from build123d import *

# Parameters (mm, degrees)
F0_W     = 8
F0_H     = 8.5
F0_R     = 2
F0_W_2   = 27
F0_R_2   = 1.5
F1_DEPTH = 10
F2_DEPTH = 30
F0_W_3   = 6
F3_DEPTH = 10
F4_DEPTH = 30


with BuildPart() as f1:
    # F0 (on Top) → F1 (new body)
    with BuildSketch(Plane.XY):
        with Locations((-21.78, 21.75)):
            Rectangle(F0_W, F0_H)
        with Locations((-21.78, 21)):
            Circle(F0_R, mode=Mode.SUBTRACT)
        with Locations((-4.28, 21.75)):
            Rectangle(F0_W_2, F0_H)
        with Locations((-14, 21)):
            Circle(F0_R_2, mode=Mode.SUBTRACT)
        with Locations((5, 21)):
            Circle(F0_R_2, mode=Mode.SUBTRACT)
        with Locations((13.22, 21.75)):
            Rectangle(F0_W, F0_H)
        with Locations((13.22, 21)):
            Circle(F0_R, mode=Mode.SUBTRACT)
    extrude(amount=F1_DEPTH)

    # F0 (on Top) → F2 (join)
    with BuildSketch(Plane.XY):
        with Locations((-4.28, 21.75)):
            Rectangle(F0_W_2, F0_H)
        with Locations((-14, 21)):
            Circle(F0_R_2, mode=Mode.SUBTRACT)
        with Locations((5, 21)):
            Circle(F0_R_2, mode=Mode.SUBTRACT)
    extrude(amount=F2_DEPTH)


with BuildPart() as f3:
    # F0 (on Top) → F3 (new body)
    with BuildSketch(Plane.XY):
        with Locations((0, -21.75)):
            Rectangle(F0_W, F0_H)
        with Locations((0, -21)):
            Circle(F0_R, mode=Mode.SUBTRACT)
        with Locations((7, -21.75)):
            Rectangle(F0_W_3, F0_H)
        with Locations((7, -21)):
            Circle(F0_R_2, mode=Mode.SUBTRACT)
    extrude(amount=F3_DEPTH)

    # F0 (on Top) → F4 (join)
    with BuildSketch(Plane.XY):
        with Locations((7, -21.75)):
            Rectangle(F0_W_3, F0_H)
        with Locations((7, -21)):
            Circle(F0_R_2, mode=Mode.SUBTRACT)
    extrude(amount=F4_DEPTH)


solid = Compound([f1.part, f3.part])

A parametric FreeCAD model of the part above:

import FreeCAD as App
import Part
import Sketcher
Q = App.Units.Quantity


def add_polygon(sketch, points):
    """Adds a closed chain of lines whose ends are joined by coincident constraints."""
    first, n = sketch.GeometryCount, len(points)
    for a, b in zip(points, points[1:] + points[:1]):
        sketch.addGeometry(Part.LineSegment(App.Vector(*a, 0), App.Vector(*b, 0)), False)
    for i in range(n):
        sketch.addConstraint(Sketcher.Constraint("Coincident", first + i, 2, first + (i + 1) % n, 1))

doc = App.newDocument("Part")
body = doc.addObject("PartDesign::Body", "Body")

sketch1 = body.newObject("Sketcher::SketchObject", "Sketch")
sketch1.AttachmentSupport = (doc.getObject("XY_Plane"), [""])
sketch1.MapMode = "FlatFace"
add_polygon(sketch1, [(-25.8, 26), (-25.8, 17.5), (17.2, 17.5), (17.2, 26)])
sketch1.addGeometry(Part.Circle(App.Vector(-21.8, 21, 0), App.Vector(0, 0, 1), 2), False)
sketch1.addGeometry(Part.Circle(App.Vector(-14, 21, 0), App.Vector(0, 0, 1), 1.5), False)
sketch1.addGeometry(Part.Circle(App.Vector(5, 21, 0), App.Vector(0, 0, 1), 1.5), False)
sketch1.addGeometry(Part.Circle(App.Vector(13.2, 21, 0), App.Vector(0, 0, 1), 2), False)
sketch1.addConstraint([
    Sketcher.Constraint("Vertical", 0),
    Sketcher.Constraint("Horizontal", 1),
    Sketcher.Constraint("Vertical", 2),
    Sketcher.Constraint("Horizontal", 3),
    Sketcher.Constraint("Equal", 5, 6),
    Sketcher.Constraint("Equal", 4, 7),
    Sketcher.Constraint("Horizontal", 4, 3, 5, 3),
    Sketcher.Constraint("Horizontal", 5, 3, 6, 3),
    Sketcher.Constraint("Horizontal", 6, 3, 7, 3),
    Sketcher.Constraint("Diameter", 4, Q("4 mm")),
    Sketcher.Constraint("Diameter", 5, Q("3 mm")),
    Sketcher.Constraint("DistanceX", 1, 1, 1, 2, Q("43 mm")),
    Sketcher.Constraint("DistanceY", 0, 2, 0, 1, Q("8.5 mm")),
    Sketcher.Constraint("DistanceY", -1, 1, 4, 3, Q("21 mm")),
    Sketcher.Constraint("DistanceX", 5, 3, -1, 1, Q("14 mm")),
    Sketcher.Constraint("DistanceX", -1, 1, 6, 3, Q("5 mm")),
    Sketcher.Constraint("DistanceY", -1, 1, 2, 2, Q("26 mm")),
    Sketcher.Constraint("DistanceX", 4, 3, 7, 3, Q("35 mm")),
    Sketcher.Constraint("DistanceX", 0, 2, 4, 3, Q("4 mm")),
    Sketcher.Constraint("DistanceX", 4, 3, -1, 1, Q("21.78 mm")),
])
pad1 = body.newObject("PartDesign::Pad", "Pad")
pad1.Profile = sketch1
pad1.Length = 10

sketch2 = body.newObject("Sketcher::SketchObject", "Sketch001")
sketch2.AttachmentSupport = (doc.getObject("XY_Plane"), [""])
sketch2.MapMode = "FlatFace"
add_polygon(sketch2, [(-17.8, 26), (-17.8, 17.5), (9.2, 17.5), (9.2, 26)])
sketch2.addGeometry(Part.Circle(App.Vector(-14, 21, 0), App.Vector(0, 0, 1), 1.5), False)
sketch2.addGeometry(Part.Circle(App.Vector(5, 21, 0), App.Vector(0, 0, 1), 1.5), False)
sketch2.addConstraint([
    Sketcher.Constraint("Vertical", 0),
    Sketcher.Constraint("Horizontal", 1),
    Sketcher.Constraint("Vertical", 2),
    Sketcher.Constraint("Horizontal", 3),
    Sketcher.Constraint("Equal", 4, 5),
    Sketcher.Constraint("Horizontal", 4, 3, 5, 3),
    Sketcher.Constraint("Diameter", 4, Q("3 mm")),
    Sketcher.Constraint("DistanceX", 1, 1, 1, 2, Q("27 mm")),
    Sketcher.Constraint("DistanceY", 0, 2, 0, 1, Q("8.5 mm")),
    Sketcher.Constraint("DistanceX", 4, 3, -1, 1, Q("14 mm")),
    Sketcher.Constraint("DistanceY", -1, 1, 4, 3, Q("21 mm")),
    Sketcher.Constraint("DistanceX", -1, 1, 5, 3, Q("5 mm")),
    Sketcher.Constraint("DistanceY", -1, 1, 2, 2, Q("26 mm")),
    Sketcher.Constraint("DistanceX", 0, 2, -1, 1, Q("17.78 mm")),
])
pad2 = body.newObject("PartDesign::Pad", "Pad001")
pad2.Profile = sketch2
pad2.Length = 30
body2 = doc.addObject("PartDesign::Body", "Body001")

sketch3 = body2.newObject("Sketcher::SketchObject", "Sketch002")
sketch3.AttachmentSupport = (doc.getObject("XY_Plane001"), [""])
sketch3.MapMode = "FlatFace"
add_polygon(sketch3, [(-4, -17.5), (-4, -26), (10, -26), (10, -17.5)])
sketch3.addGeometry(Part.Circle(App.Vector(0, -21, 0), App.Vector(0, 0, 1), 2), False)
sketch3.addGeometry(Part.Circle(App.Vector(7, -21, 0), App.Vector(0, 0, 1), 1.5), False)
sketch3.addConstraint([
    Sketcher.Constraint("Vertical", 0),
    Sketcher.Constraint("Horizontal", 1),
    Sketcher.Constraint("Vertical", 2),
    Sketcher.Constraint("Horizontal", 3),
    Sketcher.Constraint("PointOnObject", 4, 3, -2),
    Sketcher.Constraint("Horizontal", 4, 3, 5, 3),
    Sketcher.Constraint("Diameter", 4, Q("4 mm")),
    Sketcher.Constraint("Diameter", 5, Q("3 mm")),
    Sketcher.Constraint("DistanceX", 1, 1, 1, 2, Q("14 mm")),
    Sketcher.Constraint("DistanceY", 0, 2, 0, 1, Q("8.5 mm")),
    Sketcher.Constraint("DistanceY", 4, 3, -1, 1, Q("21 mm")),
    Sketcher.Constraint("DistanceX", -1, 1, 5, 3, Q("7 mm")),
    Sketcher.Constraint("DistanceX", 0, 2, -1, 1, Q("4 mm")),
    Sketcher.Constraint("DistanceY", 0, 2, -1, 1, Q("26 mm")),
])
pad3 = body2.newObject("PartDesign::Pad", "Pad002")
pad3.Profile = sketch3
pad3.Length = 10

sketch4 = body2.newObject("Sketcher::SketchObject", "Sketch003")
sketch4.AttachmentSupport = (doc.getObject("XY_Plane001"), [""])
sketch4.MapMode = "FlatFace"
add_polygon(sketch4, [(4, -17.5), (4, -26), (10, -26), (10, -17.5)])
sketch4.addGeometry(Part.Circle(App.Vector(7, -21, 0), App.Vector(0, 0, 1), 1.5), False)
sketch4.addConstraint([
    Sketcher.Constraint("Vertical", 0),
    Sketcher.Constraint("Horizontal", 1),
    Sketcher.Constraint("Vertical", 2),
    Sketcher.Constraint("Horizontal", 3),
    Sketcher.Constraint("Diameter", 4, Q("3 mm")),
    Sketcher.Constraint("DistanceX", 1, 1, 1, 2, Q("6 mm")),
    Sketcher.Constraint("DistanceY", 0, 2, 0, 1, Q("8.5 mm")),
    Sketcher.Constraint("DistanceX", -1, 1, 4, 3, Q("7 mm")),
    Sketcher.Constraint("DistanceY", 4, 3, -1, 1, Q("21 mm")),
    Sketcher.Constraint("DistanceX", -1, 1, 0, 2, Q("4 mm")),
    Sketcher.Constraint("DistanceY", 0, 2, -1, 1, Q("26 mm")),
])
pad4 = body2.newObject("PartDesign::Pad", "Pad003")
pad4.Profile = sketch4
pad4.Length = 30

doc.recompute()
